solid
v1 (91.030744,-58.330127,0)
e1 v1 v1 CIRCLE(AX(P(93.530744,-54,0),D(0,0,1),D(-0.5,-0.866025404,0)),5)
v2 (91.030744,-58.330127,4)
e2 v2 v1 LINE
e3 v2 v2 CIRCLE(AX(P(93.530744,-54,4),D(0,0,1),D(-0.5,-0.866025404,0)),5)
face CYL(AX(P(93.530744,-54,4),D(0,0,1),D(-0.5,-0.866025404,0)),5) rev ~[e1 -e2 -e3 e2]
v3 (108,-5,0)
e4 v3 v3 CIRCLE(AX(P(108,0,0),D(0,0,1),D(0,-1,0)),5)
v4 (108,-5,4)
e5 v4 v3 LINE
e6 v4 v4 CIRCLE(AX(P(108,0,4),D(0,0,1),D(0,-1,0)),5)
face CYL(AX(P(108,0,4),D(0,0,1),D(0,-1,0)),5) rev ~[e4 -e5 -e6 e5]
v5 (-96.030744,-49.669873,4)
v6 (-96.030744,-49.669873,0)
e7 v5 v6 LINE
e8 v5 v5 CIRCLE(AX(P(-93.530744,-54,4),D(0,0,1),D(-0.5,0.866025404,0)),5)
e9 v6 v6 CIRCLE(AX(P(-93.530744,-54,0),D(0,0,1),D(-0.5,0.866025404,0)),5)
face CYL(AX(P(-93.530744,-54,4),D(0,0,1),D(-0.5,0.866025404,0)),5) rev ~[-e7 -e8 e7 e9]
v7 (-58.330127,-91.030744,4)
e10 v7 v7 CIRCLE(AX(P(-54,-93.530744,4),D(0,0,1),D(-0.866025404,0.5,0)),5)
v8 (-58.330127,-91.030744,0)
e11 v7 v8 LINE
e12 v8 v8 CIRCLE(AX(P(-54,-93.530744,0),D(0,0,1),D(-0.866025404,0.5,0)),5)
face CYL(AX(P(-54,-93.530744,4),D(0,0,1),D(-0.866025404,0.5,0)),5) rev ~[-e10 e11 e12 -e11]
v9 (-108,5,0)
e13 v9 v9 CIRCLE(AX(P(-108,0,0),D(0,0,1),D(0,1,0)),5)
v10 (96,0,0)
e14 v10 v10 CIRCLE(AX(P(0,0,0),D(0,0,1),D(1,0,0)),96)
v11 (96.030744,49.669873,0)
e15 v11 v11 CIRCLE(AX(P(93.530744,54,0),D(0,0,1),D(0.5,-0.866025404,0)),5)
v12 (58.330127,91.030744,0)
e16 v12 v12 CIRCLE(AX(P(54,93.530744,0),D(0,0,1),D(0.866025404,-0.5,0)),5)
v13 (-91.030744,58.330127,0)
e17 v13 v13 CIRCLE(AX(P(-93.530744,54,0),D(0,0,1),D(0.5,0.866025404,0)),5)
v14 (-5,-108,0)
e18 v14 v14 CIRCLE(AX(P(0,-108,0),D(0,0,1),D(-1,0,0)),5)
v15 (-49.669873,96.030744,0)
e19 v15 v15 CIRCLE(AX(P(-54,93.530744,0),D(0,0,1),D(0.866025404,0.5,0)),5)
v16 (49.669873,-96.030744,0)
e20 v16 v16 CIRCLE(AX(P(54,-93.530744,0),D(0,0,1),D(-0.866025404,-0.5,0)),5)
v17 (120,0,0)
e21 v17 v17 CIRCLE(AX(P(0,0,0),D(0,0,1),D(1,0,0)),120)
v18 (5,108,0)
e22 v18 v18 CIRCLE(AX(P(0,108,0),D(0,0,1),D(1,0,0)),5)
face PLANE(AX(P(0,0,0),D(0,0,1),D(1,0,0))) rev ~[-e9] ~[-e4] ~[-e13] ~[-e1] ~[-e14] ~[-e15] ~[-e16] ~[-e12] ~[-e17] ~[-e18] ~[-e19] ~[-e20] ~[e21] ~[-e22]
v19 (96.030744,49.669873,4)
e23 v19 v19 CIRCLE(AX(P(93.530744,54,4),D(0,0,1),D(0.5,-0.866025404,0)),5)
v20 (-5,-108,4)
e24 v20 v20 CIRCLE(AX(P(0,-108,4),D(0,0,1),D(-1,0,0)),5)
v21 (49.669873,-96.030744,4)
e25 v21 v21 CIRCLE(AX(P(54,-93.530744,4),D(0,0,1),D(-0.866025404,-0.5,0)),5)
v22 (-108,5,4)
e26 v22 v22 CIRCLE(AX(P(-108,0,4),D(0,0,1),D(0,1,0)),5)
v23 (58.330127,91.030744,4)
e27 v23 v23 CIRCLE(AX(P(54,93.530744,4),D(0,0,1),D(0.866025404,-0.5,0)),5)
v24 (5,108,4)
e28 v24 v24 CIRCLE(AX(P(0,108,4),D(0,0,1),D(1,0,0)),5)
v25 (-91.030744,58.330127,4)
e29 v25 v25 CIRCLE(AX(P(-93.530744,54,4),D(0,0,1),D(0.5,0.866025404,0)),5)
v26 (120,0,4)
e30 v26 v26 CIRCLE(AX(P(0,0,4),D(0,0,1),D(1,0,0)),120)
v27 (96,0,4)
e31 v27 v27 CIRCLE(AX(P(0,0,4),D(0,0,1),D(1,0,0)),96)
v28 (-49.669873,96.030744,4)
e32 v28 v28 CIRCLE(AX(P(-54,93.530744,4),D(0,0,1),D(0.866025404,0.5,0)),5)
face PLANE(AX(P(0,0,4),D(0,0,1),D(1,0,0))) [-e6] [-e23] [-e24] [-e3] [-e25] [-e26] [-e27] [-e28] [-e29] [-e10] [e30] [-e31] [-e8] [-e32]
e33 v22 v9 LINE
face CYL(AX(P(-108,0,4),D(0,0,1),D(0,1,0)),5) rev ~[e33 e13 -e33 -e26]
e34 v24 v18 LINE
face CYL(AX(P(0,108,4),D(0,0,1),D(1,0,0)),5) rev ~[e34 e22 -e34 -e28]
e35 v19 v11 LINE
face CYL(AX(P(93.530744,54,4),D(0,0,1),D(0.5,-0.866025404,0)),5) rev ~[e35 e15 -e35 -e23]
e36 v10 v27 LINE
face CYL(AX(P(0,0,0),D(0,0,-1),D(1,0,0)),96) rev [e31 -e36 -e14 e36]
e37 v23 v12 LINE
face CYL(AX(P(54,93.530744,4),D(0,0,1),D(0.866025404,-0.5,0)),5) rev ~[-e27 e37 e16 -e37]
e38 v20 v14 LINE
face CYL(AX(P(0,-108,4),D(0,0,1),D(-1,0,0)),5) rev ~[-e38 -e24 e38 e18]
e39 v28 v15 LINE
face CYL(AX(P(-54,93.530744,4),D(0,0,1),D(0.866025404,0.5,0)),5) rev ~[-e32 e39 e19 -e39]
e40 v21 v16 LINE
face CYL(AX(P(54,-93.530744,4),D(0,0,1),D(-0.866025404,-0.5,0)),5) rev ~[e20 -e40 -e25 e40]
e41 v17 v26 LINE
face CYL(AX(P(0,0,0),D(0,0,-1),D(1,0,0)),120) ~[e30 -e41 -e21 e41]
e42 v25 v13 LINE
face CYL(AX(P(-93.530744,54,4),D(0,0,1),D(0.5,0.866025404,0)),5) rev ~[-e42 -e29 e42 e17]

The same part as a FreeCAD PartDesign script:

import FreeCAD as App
import Part
import Sketcher
from FreeCAD import Vector

doc = App.newDocument("Part")
body = doc.addObject("PartDesign::Body", "Body")

sketch1 = doc.addObject("Sketcher::SketchObject", "Sketch")
body.addObject(sketch1)
sketch1.AttachmentSupport = (doc.XY_Plane, [""])
sketch1.MapMode = "FlatFace"
sketch1.addGeometry(Part.Circle(Vector(0, 0, 0), Vector(0, 0, 1), 120), False)
sketch1.addGeometry(Part.Circle(Vector(0, 0, 0), Vector(0, 0, 1), 96), False)
sketch1.addConstraint(Sketcher.Constraint("Coincident", 0, 3, -1, 1))
sketch1.addConstraint(Sketcher.Constraint("Coincident", 1, 3, -1, 1))
sketch1.addConstraint(Sketcher.Constraint("Diameter", 0, 240.0))
sketch1.addConstraint(Sketcher.Constraint("Diameter", 1, 192.0))
pad1 = doc.addObject("PartDesign::Pad", "Pad")
body.addObject(pad1)
pad1.Profile = sketch1
pad1.Length = 4

sketch2 = doc.addObject("Sketcher::SketchObject", "Sketch001")
body.addObject(sketch2)
sketch2.AttachmentSupport = (doc.XY_Plane, [""])
sketch2.MapMode = "FlatFace"
sketch2.AttachmentOffset = App.Placement(Vector(0, 0, 4), App.Rotation())
sketch2.addGeometry(Part.Circle(Vector(0, 108, 0), Vector(0, 0, 1), 5), False)
sketch2.addConstraint(Sketcher.Constraint("PointOnObject", 0, 3, -2))
sketch2.addConstraint(Sketcher.Constraint("Diameter", 0, 10.0))
sketch2.addConstraint(Sketcher.Constraint("DistanceY", -1, 1, 0, 3, 108.0))
pocket1 = doc.addObject("PartDesign::Pocket", "Pocket")
body.addObject(pocket1)
pocket1.Profile = sketch2
pocket1.Length = 4
doc.recompute()

polarpattern = doc.addObject("PartDesign::PolarPattern", "PolarPattern")
body.addObject(polarpattern)
polarpattern.Originals = [pocket1]
polarpattern.Axis = (doc.Z_Axis, [""])
polarpattern.Angle = 360
polarpattern.Occurrences = 12
body.Tip = polarpattern

doc.recompute()
